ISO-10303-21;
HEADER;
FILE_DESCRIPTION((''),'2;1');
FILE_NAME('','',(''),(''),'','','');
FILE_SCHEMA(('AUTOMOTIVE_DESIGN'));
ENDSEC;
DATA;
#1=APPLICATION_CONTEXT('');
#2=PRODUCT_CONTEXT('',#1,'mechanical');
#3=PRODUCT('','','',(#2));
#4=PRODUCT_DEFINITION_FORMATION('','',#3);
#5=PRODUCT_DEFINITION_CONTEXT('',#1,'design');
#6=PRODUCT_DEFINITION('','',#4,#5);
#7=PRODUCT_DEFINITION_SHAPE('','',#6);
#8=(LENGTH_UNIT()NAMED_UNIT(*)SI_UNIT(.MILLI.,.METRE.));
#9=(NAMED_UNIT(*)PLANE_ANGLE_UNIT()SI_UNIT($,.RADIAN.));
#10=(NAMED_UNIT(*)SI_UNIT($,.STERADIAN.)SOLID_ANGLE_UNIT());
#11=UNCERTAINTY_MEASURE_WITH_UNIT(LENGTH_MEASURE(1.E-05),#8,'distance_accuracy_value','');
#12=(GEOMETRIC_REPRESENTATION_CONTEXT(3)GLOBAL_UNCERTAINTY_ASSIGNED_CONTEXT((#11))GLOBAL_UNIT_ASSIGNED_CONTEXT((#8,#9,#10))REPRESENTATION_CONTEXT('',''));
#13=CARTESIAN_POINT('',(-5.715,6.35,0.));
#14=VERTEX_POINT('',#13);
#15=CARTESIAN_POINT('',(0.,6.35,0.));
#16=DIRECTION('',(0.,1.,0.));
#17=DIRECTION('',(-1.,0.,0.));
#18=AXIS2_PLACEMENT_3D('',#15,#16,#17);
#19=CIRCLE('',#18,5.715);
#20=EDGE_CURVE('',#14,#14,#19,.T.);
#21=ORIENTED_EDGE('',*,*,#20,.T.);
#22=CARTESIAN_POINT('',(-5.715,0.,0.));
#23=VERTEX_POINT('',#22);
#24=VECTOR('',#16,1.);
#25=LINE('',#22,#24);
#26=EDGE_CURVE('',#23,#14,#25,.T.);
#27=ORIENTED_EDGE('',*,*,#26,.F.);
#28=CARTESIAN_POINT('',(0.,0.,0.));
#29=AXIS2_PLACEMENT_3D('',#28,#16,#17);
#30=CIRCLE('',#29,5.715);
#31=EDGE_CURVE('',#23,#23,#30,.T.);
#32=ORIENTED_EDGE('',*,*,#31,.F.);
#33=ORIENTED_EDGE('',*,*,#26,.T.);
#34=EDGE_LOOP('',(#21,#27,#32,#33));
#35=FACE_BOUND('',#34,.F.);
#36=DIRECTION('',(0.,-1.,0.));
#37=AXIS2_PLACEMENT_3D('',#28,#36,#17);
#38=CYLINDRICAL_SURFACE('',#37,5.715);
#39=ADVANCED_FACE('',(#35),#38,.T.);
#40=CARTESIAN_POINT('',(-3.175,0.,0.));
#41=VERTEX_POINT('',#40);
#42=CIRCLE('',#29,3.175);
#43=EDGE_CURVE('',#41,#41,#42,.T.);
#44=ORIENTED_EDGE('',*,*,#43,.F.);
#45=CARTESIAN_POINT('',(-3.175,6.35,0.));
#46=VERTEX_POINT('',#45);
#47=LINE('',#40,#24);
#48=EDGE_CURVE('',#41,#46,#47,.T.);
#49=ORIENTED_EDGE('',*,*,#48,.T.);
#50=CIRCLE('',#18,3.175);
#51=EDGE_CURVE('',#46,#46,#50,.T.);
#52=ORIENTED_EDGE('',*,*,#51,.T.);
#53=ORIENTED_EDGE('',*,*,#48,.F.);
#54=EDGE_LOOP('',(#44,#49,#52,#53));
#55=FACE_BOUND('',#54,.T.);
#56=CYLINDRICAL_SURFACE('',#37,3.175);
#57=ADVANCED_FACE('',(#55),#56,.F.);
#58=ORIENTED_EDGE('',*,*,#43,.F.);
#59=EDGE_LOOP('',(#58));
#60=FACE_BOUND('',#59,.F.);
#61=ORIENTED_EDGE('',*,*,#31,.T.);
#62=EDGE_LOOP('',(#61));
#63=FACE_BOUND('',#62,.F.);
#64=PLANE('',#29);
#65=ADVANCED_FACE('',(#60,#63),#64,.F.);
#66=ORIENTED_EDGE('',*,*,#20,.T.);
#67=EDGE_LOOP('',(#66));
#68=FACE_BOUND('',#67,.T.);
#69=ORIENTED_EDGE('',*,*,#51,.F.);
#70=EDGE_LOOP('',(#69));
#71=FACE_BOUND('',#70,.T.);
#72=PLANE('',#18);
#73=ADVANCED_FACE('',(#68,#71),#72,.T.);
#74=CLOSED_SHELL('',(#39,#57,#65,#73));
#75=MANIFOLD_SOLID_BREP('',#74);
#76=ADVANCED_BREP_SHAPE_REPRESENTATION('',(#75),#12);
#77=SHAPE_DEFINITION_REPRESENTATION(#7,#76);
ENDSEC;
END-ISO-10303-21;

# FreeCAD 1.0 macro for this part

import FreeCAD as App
import Part
import Sketcher
from FreeCAD import Vector
Q = App.Units.Quantity

doc = App.newDocument("Part")
body = doc.addObject("PartDesign::Body", "Body")

# Sketch on XZ plane
sketch1 = doc.addObject("Sketcher::SketchObject", "Sketch")
body.addObject(sketch1)
sketch1.AttachmentSupport = (doc.XZ_Plane, [""])
sketch1.MapMode = "FlatFace"
sketch1.addGeometry([
    Part.Circle(Vector(0, 0, 0), Vector(0, 0, 1), 5.7),
    Part.Circle(Vector(0, 0, 0), Vector(0, 0, 1), 3.2),
], False)
sketch1.addConstraint([
    Sketcher.Constraint("Coincident", 0, 3, -1, 1),
    Sketcher.Constraint("Coincident", 1, 3, -1, 1),
    Sketcher.Constraint("Diameter", 0, Q("0.45 in")),
    Sketcher.Constraint("Diameter", 1, Q("0.25 in")),
])
pad1 = doc.addObject("PartDesign::Pad", "Pad")
body.addObject(pad1)
pad1.Profile = sketch1
pad1.Length = Q("0.25 in")
pad1.Reversed = True

doc.recompute()
